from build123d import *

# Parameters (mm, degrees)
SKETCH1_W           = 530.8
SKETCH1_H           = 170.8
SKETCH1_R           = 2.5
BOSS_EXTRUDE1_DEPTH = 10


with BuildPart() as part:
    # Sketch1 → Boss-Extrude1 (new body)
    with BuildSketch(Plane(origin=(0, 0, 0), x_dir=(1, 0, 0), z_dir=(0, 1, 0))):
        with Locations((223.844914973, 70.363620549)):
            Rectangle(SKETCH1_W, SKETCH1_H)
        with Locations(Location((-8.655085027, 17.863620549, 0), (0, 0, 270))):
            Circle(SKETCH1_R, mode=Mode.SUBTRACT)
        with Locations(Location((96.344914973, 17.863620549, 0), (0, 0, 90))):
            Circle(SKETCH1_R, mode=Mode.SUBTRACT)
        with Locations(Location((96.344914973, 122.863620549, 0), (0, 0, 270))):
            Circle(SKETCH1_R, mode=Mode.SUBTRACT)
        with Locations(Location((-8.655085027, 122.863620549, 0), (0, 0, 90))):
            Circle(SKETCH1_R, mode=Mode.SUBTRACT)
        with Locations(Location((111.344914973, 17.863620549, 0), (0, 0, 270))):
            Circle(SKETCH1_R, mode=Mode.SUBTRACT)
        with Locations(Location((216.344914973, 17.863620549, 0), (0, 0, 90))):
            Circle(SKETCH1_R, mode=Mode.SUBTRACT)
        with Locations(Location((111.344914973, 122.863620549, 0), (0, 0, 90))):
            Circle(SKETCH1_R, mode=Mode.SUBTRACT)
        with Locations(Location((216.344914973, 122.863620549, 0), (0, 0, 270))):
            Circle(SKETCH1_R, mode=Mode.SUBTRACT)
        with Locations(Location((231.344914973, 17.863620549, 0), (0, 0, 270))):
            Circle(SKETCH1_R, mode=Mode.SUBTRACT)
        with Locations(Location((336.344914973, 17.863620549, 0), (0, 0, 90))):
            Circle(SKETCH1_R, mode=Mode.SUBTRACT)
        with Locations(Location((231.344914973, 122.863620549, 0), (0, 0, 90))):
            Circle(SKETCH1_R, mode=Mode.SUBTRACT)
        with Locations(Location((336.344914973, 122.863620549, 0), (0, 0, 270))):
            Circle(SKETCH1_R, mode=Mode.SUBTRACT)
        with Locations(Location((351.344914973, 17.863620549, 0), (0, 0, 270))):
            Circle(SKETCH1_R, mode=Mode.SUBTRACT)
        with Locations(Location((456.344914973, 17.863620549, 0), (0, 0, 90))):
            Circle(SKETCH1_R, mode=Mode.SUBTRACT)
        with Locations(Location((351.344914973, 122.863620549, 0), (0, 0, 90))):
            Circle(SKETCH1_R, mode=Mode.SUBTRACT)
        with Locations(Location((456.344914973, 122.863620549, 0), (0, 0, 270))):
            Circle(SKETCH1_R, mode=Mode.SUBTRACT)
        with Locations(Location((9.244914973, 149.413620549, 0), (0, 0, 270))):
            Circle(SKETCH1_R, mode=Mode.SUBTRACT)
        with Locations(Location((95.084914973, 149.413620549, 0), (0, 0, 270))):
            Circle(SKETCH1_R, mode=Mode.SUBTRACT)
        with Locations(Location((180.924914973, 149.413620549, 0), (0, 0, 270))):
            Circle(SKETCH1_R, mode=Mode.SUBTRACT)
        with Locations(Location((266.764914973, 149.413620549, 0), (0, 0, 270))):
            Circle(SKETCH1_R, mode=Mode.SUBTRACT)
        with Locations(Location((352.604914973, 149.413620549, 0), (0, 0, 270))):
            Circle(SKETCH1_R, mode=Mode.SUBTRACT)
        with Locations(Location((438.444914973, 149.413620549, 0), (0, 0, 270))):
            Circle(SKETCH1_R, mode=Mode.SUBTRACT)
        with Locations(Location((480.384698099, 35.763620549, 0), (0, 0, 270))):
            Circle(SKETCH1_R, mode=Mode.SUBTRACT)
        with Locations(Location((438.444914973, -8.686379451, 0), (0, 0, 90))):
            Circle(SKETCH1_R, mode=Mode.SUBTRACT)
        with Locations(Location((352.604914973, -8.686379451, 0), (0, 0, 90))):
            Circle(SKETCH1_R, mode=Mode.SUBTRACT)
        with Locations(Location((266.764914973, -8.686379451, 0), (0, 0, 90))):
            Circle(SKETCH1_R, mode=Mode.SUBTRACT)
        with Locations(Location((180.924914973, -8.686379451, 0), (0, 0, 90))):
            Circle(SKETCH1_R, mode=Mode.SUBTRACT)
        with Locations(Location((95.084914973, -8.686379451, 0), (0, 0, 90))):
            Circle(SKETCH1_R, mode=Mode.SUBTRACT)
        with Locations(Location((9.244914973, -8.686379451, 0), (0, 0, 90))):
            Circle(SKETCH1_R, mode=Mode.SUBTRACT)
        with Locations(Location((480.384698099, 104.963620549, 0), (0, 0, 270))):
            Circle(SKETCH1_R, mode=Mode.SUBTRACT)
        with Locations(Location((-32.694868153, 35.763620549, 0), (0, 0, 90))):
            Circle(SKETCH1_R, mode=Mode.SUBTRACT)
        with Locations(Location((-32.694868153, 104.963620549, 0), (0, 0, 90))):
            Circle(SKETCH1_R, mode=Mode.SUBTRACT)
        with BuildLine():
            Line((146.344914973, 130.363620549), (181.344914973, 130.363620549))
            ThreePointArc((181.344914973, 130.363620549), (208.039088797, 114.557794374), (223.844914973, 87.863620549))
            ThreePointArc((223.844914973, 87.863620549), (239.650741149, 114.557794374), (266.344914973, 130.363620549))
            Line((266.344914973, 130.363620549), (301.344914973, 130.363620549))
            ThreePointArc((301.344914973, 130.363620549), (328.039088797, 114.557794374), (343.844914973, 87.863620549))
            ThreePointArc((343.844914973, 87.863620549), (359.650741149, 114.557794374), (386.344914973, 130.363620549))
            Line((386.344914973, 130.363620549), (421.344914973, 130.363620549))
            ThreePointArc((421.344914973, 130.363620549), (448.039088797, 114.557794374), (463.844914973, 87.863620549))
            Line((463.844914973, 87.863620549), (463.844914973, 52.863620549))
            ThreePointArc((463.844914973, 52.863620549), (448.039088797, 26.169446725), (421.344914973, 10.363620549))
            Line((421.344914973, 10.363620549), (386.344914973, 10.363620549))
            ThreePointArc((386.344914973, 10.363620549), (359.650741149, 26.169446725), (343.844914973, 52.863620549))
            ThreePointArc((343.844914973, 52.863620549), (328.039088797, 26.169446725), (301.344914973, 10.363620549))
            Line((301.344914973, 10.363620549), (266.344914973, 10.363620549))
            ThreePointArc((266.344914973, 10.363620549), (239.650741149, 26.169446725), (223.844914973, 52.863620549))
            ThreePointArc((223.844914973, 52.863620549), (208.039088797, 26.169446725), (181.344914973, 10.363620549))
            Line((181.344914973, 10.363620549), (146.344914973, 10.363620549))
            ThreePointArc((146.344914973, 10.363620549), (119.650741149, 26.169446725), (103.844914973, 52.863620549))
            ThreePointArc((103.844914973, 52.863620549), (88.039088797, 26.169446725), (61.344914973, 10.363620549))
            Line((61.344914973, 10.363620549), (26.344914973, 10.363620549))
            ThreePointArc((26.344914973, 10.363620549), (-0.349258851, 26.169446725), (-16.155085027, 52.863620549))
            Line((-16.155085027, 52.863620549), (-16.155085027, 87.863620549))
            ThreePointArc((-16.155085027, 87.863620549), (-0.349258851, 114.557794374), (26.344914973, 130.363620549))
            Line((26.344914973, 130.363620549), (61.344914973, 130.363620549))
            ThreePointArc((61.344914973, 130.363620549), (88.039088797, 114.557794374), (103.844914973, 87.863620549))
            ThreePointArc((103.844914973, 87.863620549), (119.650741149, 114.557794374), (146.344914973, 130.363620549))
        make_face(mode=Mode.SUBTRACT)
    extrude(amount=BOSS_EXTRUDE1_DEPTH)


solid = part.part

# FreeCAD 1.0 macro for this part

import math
import FreeCAD as App
import Part
import Sketcher
from FreeCAD import Vector

doc = App.newDocument("Part")
body = doc.addObject("PartDesign::Body", "Body")

# Sketch on XZ plane
sketch1 = body.newObject("Sketcher::SketchObject", "Sketch")
sketch1.AttachmentSupport = (doc.getObject("XZ_Plane"), [""])
sketch1.MapMode = "FlatFace"
sketch1.addGeometry(Part.LineSegment(Vector(-41.6, -155.8, 0), Vector(-41.6, 15, 0)), False)
sketch1.addGeometry(Part.LineSegment(Vector(-41.6, 15, 0), Vector(489.2, 15, 0)), False)
sketch1.addGeometry(Part.LineSegment(Vector(489.2, 15, 0), Vector(489.2, -155.8, 0)), False)
sketch1.addGeometry(Part.LineSegment(Vector(489.2, -155.8, 0), Vector(-41.6, -155.8, 0)), False)
sketch1.addGeometry(Part.Circle(Vector(9.2, 8.7, 0), Vector(0, 0, 1), 2.5), False)
sketch1.addGeometry(Part.Circle(Vector(-8.7, -17.9, 0), Vector(0, 0, 1), 2.5), False)
sketch1.addGeometry(Part.Circle(Vector(95.1, 8.7, 0), Vector(0, 0, 1), 2.5), False)
sketch1.addGeometry(Part.Circle(Vector(180.9, 8.7, 0), Vector(0, 0, 1), 2.5), False)
sketch1.addGeometry(Part.Circle(Vector(96.3, -17.9, 0), Vector(0, 0, 1), 2.5), False)
sketch1.addGeometry(Part.Circle(Vector(111.3, -17.9, 0), Vector(0, 0, 1), 2.5), False)
sketch1.addGeometry(Part.Circle(Vector(216.3, -17.9, 0), Vector(0, 0, 1), 2.5), False)
sketch1.addGeometry(Part.Circle(Vector(-32.7, -35.8, 0), Vector(0, 0, 1), 2.5), False)
sketch1.addGeometry(Part.Circle(Vector(266.8, 8.7, 0), Vector(0, 0, 1), 2.5), False)
sketch1.addGeometry(Part.Circle(Vector(352.6, 8.7, 0), Vector(0, 0, 1), 2.5), False)
sketch1.addGeometry(Part.Circle(Vector(231.3, -17.9, 0), Vector(0, 0, 1), 2.5), False)
sketch1.addGeometry(Part.Circle(Vector(336.3, -17.9, 0), Vector(0, 0, 1), 2.5), False)
sketch1.addGeometry(Part.Circle(Vector(351.3, -17.9, 0), Vector(0, 0, 1), 2.5), False)
sketch1.addGeometry(Part.Circle(Vector(438.4, 8.7, 0), Vector(0, 0, 1), 2.5), False)
sketch1.addGeometry(Part.Circle(Vector(456.3, -17.9, 0), Vector(0, 0, 1), 2.5), False)
sketch1.addGeometry(Part.Circle(Vector(480.4, -35.8, 0), Vector(0, 0, 1), 2.5), False)
sketch1.addGeometry(Part.Circle(Vector(-32.7, -105, 0), Vector(0, 0, 1), 2.5), False)
sketch1.addGeometry(Part.Circle(Vector(-8.7, -122.9, 0), Vector(0, 0, 1), 2.5), False)
sketch1.addGeometry(Part.Circle(Vector(9.2, -149.4, 0), Vector(0, 0, 1), 2.5), False)
sketch1.addGeometry(Part.Circle(Vector(96.3, -122.9, 0), Vector(0, 0, 1), 2.5), False)
sketch1.addGeometry(Part.Circle(Vector(111.3, -122.9, 0), Vector(0, 0, 1), 2.5), False)
sketch1.addGeometry(Part.Circle(Vector(216.3, -122.9, 0), Vector(0, 0, 1), 2.5), False)
sketch1.addGeometry(Part.Circle(Vector(95.1, -149.4, 0), Vector(0, 0, 1), 2.5), False)
sketch1.addGeometry(Part.Circle(Vector(180.9, -149.4, 0), Vector(0, 0, 1), 2.5), False)
sketch1.addGeometry(Part.ArcOfCircle(Part.Circle(Vector(163.8, -70.4, 0), Vector(0, 0, 1), 62.5), math.radians(-164), math.radians(-106)), False)
sketch1.addGeometry(Part.LineSegment(Vector(146.3, -130.4, 0), Vector(181.3, -130.4, 0)), False)
sketch1.addGeometry(Part.ArcOfCircle(Part.Circle(Vector(163.8, -70.4, 0), Vector(0, 0, 1), 62.5), math.radians(-74), math.radians(-16)), False)
sketch1.addGeometry(Part.ArcOfCircle(Part.Circle(Vector(283.8, -70.4, 0), Vector(0, 0, 1), 62.5), math.radians(-164), math.radians(-106)), False)
sketch1.addGeometry(Part.LineSegment(Vector(266.3, -130.4, 0), Vector(301.3, -130.4, 0)), False)
sketch1.addGeometry(Part.ArcOfCircle(Part.Circle(Vector(283.8, -70.4, 0), Vector(0, 0, 1), 62.5), math.radians(-74), math.radians(-16)), False)
sketch1.addGeometry(Part.ArcOfCircle(Part.Circle(Vector(403.8, -70.4, 0), Vector(0, 0, 1), 62.5), math.radians(-164), math.radians(-106)), False)
sketch1.addGeometry(Part.LineSegment(Vector(386.3, -130.4, 0), Vector(421.3, -130.4, 0)), False)
sketch1.addGeometry(Part.ArcOfCircle(Part.Circle(Vector(403.8, -70.4, 0), Vector(0, 0, 1), 62.5), math.radians(-74), math.radians(-16)), False)
sketch1.addGeometry(Part.LineSegment(Vector(463.8, -87.9, 0), Vector(463.8, -52.9, 0)), False)
sketch1.addGeometry(Part.ArcOfCircle(Part.Circle(Vector(403.8, -70.4, 0), Vector(0, 0, 1), 62.5), math.radians(16), math.radians(74)), False)
sketch1.addGeometry(Part.LineSegment(Vector(421.3, -10.4, 0), Vector(386.3, -10.4, 0)), False)
sketch1.addGeometry(Part.ArcOfCircle(Part.Circle(Vector(403.8, -70.4, 0), Vector(0, 0, 1), 62.5), math.radians(106), math.radians(164)), False)
sketch1.addGeometry(Part.ArcOfCircle(Part.Circle(Vector(283.8, -70.4, 0), Vector(0, 0, 1), 62.5), math.radians(16), math.radians(74)), False)
sketch1.addGeometry(Part.LineSegment(Vector(301.3, -10.4, 0), Vector(266.3, -10.4, 0)), False)
sketch1.addGeometry(Part.ArcOfCircle(Part.Circle(Vector(283.8, -70.4, 0), Vector(0, 0, 1), 62.5), math.radians(106), math.radians(164)), False)
sketch1.addGeometry(Part.ArcOfCircle(Part.Circle(Vector(163.8, -70.4, 0), Vector(0, 0, 1), 62.5), math.radians(16), math.radians(74)), False)
sketch1.addGeometry(Part.LineSegment(Vector(181.3, -10.4, 0), Vector(146.3, -10.4, 0)), False)
sketch1.addGeometry(Part.ArcOfCircle(Part.Circle(Vector(163.8, -70.4, 0), Vector(0, 0, 1), 62.5), math.radians(106), math.radians(164)), False)
sketch1.addGeometry(Part.ArcOfCircle(Part.Circle(Vector(43.8, -70.4, 0), Vector(0, 0, 1), 62.5), math.radians(16), math.radians(74)), False)
sketch1.addGeometry(Part.LineSegment(Vector(61.3, -10.4, 0), Vector(26.3, -10.4, 0)), False)
sketch1.addGeometry(Part.ArcOfCircle(Part.Circle(Vector(43.8, -70.4, 0), Vector(0, 0, 1), 62.5), math.radians(106), math.radians(164)), False)
sketch1.addGeometry(Part.LineSegment(Vector(-16.2, -52.9, 0), Vector(-16.2, -87.9, 0)), False)
sketch1.addGeometry(Part.ArcOfCircle(Part.Circle(Vector(43.8, -70.4, 0), Vector(0, 0, 1), 62.5), math.radians(-164), math.radians(-106)), False)
sketch1.addGeometry(Part.LineSegment(Vector(26.3, -130.4, 0), Vector(61.3, -130.4, 0)), False)
sketch1.addGeometry(Part.ArcOfCircle(Part.Circle(Vector(43.8, -70.4, 0), Vector(0, 0, 1), 62.5), math.radians(-74), math.radians(-16)), False)
sketch1.addGeometry(Part.Circle(Vector(480.4, -105, 0), Vector(0, 0, 1), 2.5), False)
sketch1.addGeometry(Part.Circle(Vector(231.3, -122.9, 0), Vector(0, 0, 1), 2.5), False)
sketch1.addGeometry(Part.Circle(Vector(336.3, -122.9, 0), Vector(0, 0, 1), 2.5), False)
sketch1.addGeometry(Part.Circle(Vector(351.3, -122.9, 0), Vector(0, 0, 1), 2.5), False)
sketch1.addGeometry(Part.Circle(Vector(266.8, -149.4, 0), Vector(0, 0, 1), 2.5), False)
sketch1.addGeometry(Part.Circle(Vector(352.6, -149.4, 0), Vector(0, 0, 1), 2.5), False)
sketch1.addGeometry(Part.Circle(Vector(456.3, -122.9, 0), Vector(0, 0, 1), 2.5), False)
sketch1.addGeometry(Part.Circle(Vector(438.4, -149.4, 0), Vector(0, 0, 1), 2.5), False)
sketch1.addConstraint(Sketcher.Constraint("Coincident", 0, 2, 1, 1))
sketch1.addConstraint(Sketcher.Constraint("Coincident", 1, 2, 2, 1))
sketch1.addConstraint(Sketcher.Constraint("Coincident", 2, 2, 3, 1))
sketch1.addConstraint(Sketcher.Constraint("Coincident", 3, 2, 0, 1))
sketch1.addConstraint(Sketcher.Constraint("Coincident", 28, 2, 29, 1))
sketch1.addConstraint(Sketcher.Constraint("Coincident", 29, 2, 30, 1))
sketch1.addConstraint(Sketcher.Constraint("Coincident", 30, 2, 31, 1))
sketch1.addConstraint(Sketcher.Constraint("Coincident", 31, 2, 32, 1))
sketch1.addConstraint(Sketcher.Constraint("Coincident", 32, 2, 33, 1))
sketch1.addConstraint(Sketcher.Constraint("Coincident", 33, 2, 34, 1))
sketch1.addConstraint(Sketcher.Constraint("Coincident", 34, 2, 35, 1))
sketch1.addConstraint(Sketcher.Constraint("Coincident", 35, 2, 36, 1))
sketch1.addConstraint(Sketcher.Constraint("Coincident", 36, 2, 37, 1))
sketch1.addConstraint(Sketcher.Constraint("Coincident", 37, 2, 38, 1))
sketch1.addConstraint(Sketcher.Constraint("Coincident", 38, 2, 39, 1))
sketch1.addConstraint(Sketcher.Constraint("Coincident", 39, 2, 40, 1))
sketch1.addConstraint(Sketcher.Constraint("Coincident", 40, 2, 41, 1))
sketch1.addConstraint(Sketcher.Constraint("Coincident", 41, 2, 42, 1))
sketch1.addConstraint(Sketcher.Constraint("Coincident", 42, 2, 43, 1))
sketch1.addConstraint(Sketcher.Constraint("Coincident", 43, 2, 44, 1))
sketch1.addConstraint(Sketcher.Constraint("Coincident", 44, 2, 45, 1))
sketch1.addConstraint(Sketcher.Constraint("Coincident", 45, 2, 46, 1))
sketch1.addConstraint(Sketcher.Constraint("Coincident", 46, 2, 47, 1))
sketch1.addConstraint(Sketcher.Constraint("Coincident", 47, 2, 48, 1))
sketch1.addConstraint(Sketcher.Constraint("Coincident", 48, 2, 49, 1))
sketch1.addConstraint(Sketcher.Constraint("Coincident", 49, 2, 50, 1))
sketch1.addConstraint(Sketcher.Constraint("Coincident", 50, 2, 51, 1))
sketch1.addConstraint(Sketcher.Constraint("Coincident", 51, 2, 52, 1))
sketch1.addConstraint(Sketcher.Constraint("Coincident", 52, 2, 53, 1))
sketch1.addConstraint(Sketcher.Constraint("Coincident", 53, 2, 28, 1))
sketch1.addConstraint(Sketcher.Constraint("Vertical", 0))
sketch1.addConstraint(Sketcher.Constraint("Horizontal", 1))
sketch1.addConstraint(Sketcher.Constraint("Vertical", 2))
sketch1.addConstraint(Sketcher.Constraint("Horizontal", 3))
sketch1.addConstraint(Sketcher.Constraint("Horizontal", 29))
sketch1.addConstraint(Sketcher.Constraint("Horizontal", 32))
sketch1.addConstraint(Sketcher.Constraint("Horizontal", 35))
sketch1.addConstraint(Sketcher.Constraint("Vertical", 37))
sketch1.addConstraint(Sketcher.Constraint("Horizontal", 39))
sketch1.addConstraint(Sketcher.Constraint("Horizontal", 42))
sketch1.addConstraint(Sketcher.Constraint("Horizontal", 45))
sketch1.addConstraint(Sketcher.Constraint("Horizontal", 48))
sketch1.addConstraint(Sketcher.Constraint("Vertical", 50))
sketch1.addConstraint(Sketcher.Constraint("Horizontal", 52))
sketch1.addConstraint(Sketcher.Constraint("Coincident", 30, 3, 28, 3))
sketch1.addConstraint(Sketcher.Constraint("Coincident", 33, 3, 31, 3))
sketch1.addConstraint(Sketcher.Constraint("Coincident", 36, 3, 34, 3))
sketch1.addConstraint(Sketcher.Constraint("Coincident", 38, 3, 34, 3))
sketch1.addConstraint(Sketcher.Constraint("Coincident", 40, 3, 34, 3))
sketch1.addConstraint(Sketcher.Constraint("Coincident", 41, 3, 31, 3))
sketch1.addConstraint(Sketcher.Constraint("Coincident", 43, 3, 31, 3))
sketch1.addConstraint(Sketcher.Constraint("Coincident", 44, 3, 28, 3))
sketch1.addConstraint(Sketcher.Constraint("Coincident", 46, 3, 28, 3))
sketch1.addConstraint(Sketcher.Constraint("Coincident", 49, 3, 47, 3))
sketch1.addConstraint(Sketcher.Constraint("Coincident", 51, 3, 47, 3))
sketch1.addConstraint(Sketcher.Constraint("Coincident", 53, 3, 47, 3))
sketch1.addConstraint(Sketcher.Constraint("Equal", 4, 5))
sketch1.addConstraint(Sketcher.Constraint("Equal", 5, 6))
sketch1.addConstraint(Sketcher.Constraint("Equal", 6, 7))
sketch1.addConstraint(Sketcher.Constraint("Equal", 7, 8))
sketch1.addConstraint(Sketcher.Constraint("Equal", 8, 9))
sketch1.addConstraint(Sketcher.Constraint("Equal", 9, 10))
sketch1.addConstraint(Sketcher.Constraint("Equal", 10, 11))
sketch1.addConstraint(Sketcher.Constraint("Equal", 11, 12))
sketch1.addConstraint(Sketcher.Constraint("Equal", 12, 13))
sketch1.addConstraint(Sketcher.Constraint("Equal", 13, 14))
sketch1.addConstraint(Sketcher.Constraint("Equal", 14, 15))
sketch1.addConstraint(Sketcher.Constraint("Equal", 15, 16))
sketch1.addConstraint(Sketcher.Constraint("Equal", 16, 17))
sketch1.addConstraint(Sketcher.Constraint("Equal", 17, 18))
sketch1.addConstraint(Sketcher.Constraint("Equal", 18, 19))
sketch1.addConstraint(Sketcher.Constraint("Equal", 19, 20))
sketch1.addConstraint(Sketcher.Constraint("Equal", 20, 21))
sketch1.addConstraint(Sketcher.Constraint("Equal", 21, 22))
sketch1.addConstraint(Sketcher.Constraint("Equal", 22, 23))
sketch1.addConstraint(Sketcher.Constraint("Equal", 23, 24))
sketch1.addConstraint(Sketcher.Constraint("Equal", 24, 25))
sketch1.addConstraint(Sketcher.Constraint("Equal", 25, 26))
sketch1.addConstraint(Sketcher.Constraint("Equal", 26, 27))
sketch1.addConstraint(Sketcher.Constraint("Equal", 28, 30))
sketch1.addConstraint(Sketcher.Constraint("Equal", 30, 31))
sketch1.addConstraint(Sketcher.Constraint("Equal", 31, 33))
sketch1.addConstraint(Sketcher.Constraint("Equal", 33, 34))
sketch1.addConstraint(Sketcher.Constraint("Equal", 34, 36))
sketch1.addConstraint(Sketcher.Constraint("Equal", 36, 38))
sketch1.addConstraint(Sketcher.Constraint("Equal", 38, 40))
sketch1.addConstraint(Sketcher.Constraint("Equal", 40, 41))
sketch1.addConstraint(Sketcher.Constraint("Equal", 41, 43))
sketch1.addConstraint(Sketcher.Constraint("Equal", 43, 44))
sketch1.addConstraint(Sketcher.Constraint("Equal", 44, 46))
sketch1.addConstraint(Sketcher.Constraint("Equal", 46, 47))
sketch1.addConstraint(Sketcher.Constraint("Equal", 47, 49))
sketch1.addConstraint(Sketcher.Constraint("Equal", 49, 51))
sketch1.addConstraint(Sketcher.Constraint("Equal", 51, 53))
sketch1.addConstraint(Sketcher.Constraint("Equal", 27, 54))
sketch1.addConstraint(Sketcher.Constraint("Equal", 54, 55))
sketch1.addConstraint(Sketcher.Constraint("Equal", 55, 56))
sketch1.addConstraint(Sketcher.Constraint("Equal", 56, 57))
sketch1.addConstraint(Sketcher.Constraint("Equal", 57, 58))
sketch1.addConstraint(Sketcher.Constraint("Equal", 58, 59))
sketch1.addConstraint(Sketcher.Constraint("Equal", 59, 60))
sketch1.addConstraint(Sketcher.Constraint("Equal", 60, 61))
sketch1.addConstraint(Sketcher.Constraint("Horizontal", 4, 3, 6, 3))
sketch1.addConstraint(Sketcher.Constraint("Horizontal", 6, 3, 7, 3))
sketch1.addConstraint(Sketcher.Constraint("Horizontal", 5, 3, 8, 3))
sketch1.addConstraint(Sketcher.Constraint("Horizontal", 8, 3, 9, 3))
sketch1.addConstraint(Sketcher.Constraint("Horizontal", 9, 3, 10, 3))
sketch1.addConstraint(Sketcher.Constraint("Horizontal", 7, 3, 12, 3))
sketch1.addConstraint(Sketcher.Constraint("Horizontal", 12, 3, 13, 3))
sketch1.addConstraint(Sketcher.Constraint("Horizontal", 10, 3, 14, 3))
sketch1.addConstraint(Sketcher.Constraint("Horizontal", 14, 3, 15, 3))
sketch1.addConstraint(Sketcher.Constraint("Horizontal", 15, 3, 16, 3))
sketch1.addConstraint(Sketcher.Constraint("Horizontal", 13, 3, 17, 3))
sketch1.addConstraint(Sketcher.Constraint("Horizontal", 16, 3, 18, 3))
sketch1.addConstraint(Sketcher.Constraint("Horizontal", 11, 3, 19, 3))
sketch1.addConstraint(Sketcher.Constraint("Horizontal", 21, 3, 23, 3))
sketch1.addConstraint(Sketcher.Constraint("Horizontal", 23, 3, 24, 3))
sketch1.addConstraint(Sketcher.Constraint("Horizontal", 24, 3, 25, 3))
sketch1.addConstraint(Sketcher.Constraint("Horizontal", 22, 3, 26, 3))
sketch1.addConstraint(Sketcher.Constraint("Horizontal", 26, 3, 27, 3))
sketch1.addConstraint(Sketcher.Constraint("Horizontal", 30, 3, 31, 3))
sketch1.addConstraint(Sketcher.Constraint("Horizontal", 33, 3, 34, 3))
sketch1.addConstraint(Sketcher.Constraint("Horizontal", 46, 3, 47, 3))
sketch1.addConstraint(Sketcher.Constraint("Horizontal", 20, 3, 54, 3))
sketch1.addConstraint(Sketcher.Constraint("Horizontal", 25, 3, 55, 3))
sketch1.addConstraint(Sketcher.Constraint("Horizontal", 55, 3, 56, 3))
sketch1.addConstraint(Sketcher.Constraint("Horizontal", 56, 3, 57, 3))
sketch1.addConstraint(Sketcher.Constraint("Horizontal", 27, 3, 58, 3))
sketch1.addConstraint(Sketcher.Constraint("Horizontal", 58, 3, 59, 3))
sketch1.addConstraint(Sketcher.Constraint("Horizontal", 57, 3, 60, 3))
sketch1.addConstraint(Sketcher.Constraint("Horizontal", 59, 3, 61, 3))
sketch1.addConstraint(Sketcher.Constraint("Horizontal", 29, 2, 31, 2))
sketch1.addConstraint(Sketcher.Constraint("Horizontal", 30, 2, 33, 2))
sketch1.addConstraint(Sketcher.Constraint("Horizontal", 32, 2, 34, 2))
sketch1.addConstraint(Sketcher.Constraint("Horizontal", 33, 2, 36, 2))
sketch1.addConstraint(Sketcher.Constraint("Horizontal", 39, 2, 41, 2))
sketch1.addConstraint(Sketcher.Constraint("Horizontal", 42, 2, 44, 2))
sketch1.addConstraint(Sketcher.Constraint("Horizontal", 43, 2, 46, 2))
sketch1.addConstraint(Sketcher.Constraint("Horizontal", 45, 2, 47, 2))
sketch1.addConstraint(Sketcher.Constraint("Horizontal", 46, 2, 49, 2))
sketch1.addConstraint(Sketcher.Constraint("Horizontal", 35, 2, 51, 2))
sketch1.addConstraint(Sketcher.Constraint("Vertical", 11, 3, 20, 3))
sketch1.addConstraint(Sketcher.Constraint("Vertical", 5, 3, 21, 3))
sketch1.addConstraint(Sketcher.Constraint("Vertical", 4, 3, 22, 3))
sketch1.addConstraint(Sketcher.Constraint("Vertical", 8, 3, 23, 3))
sketch1.addConstraint(Sketcher.Constraint("Vertical", 9, 3, 24, 3))
sketch1.addConstraint(Sketcher.Constraint("Vertical", 10, 3, 25, 3))
sketch1.addConstraint(Sketcher.Constraint("Vertical", 6, 3, 26, 3))
sketch1.addConstraint(Sketcher.Constraint("Vertical", 7, 3, 27, 3))
sketch1.addConstraint(Sketcher.Constraint("Vertical", 19, 3, 54, 3))
sketch1.addConstraint(Sketcher.Constraint("Vertical", 14, 3, 55, 3))
sketch1.addConstraint(Sketcher.Constraint("Vertical", 15, 3, 56, 3))
sketch1.addConstraint(Sketcher.Constraint("Vertical", 16, 3, 57, 3))
sketch1.addConstraint(Sketcher.Constraint("Vertical", 12, 3, 58, 3))
sketch1.addConstraint(Sketcher.Constraint("Vertical", 13, 3, 59, 3))
sketch1.addConstraint(Sketcher.Constraint("Vertical", 18, 3, 60, 3))
sketch1.addConstraint(Sketcher.Constraint("Vertical", 17, 3, 61, 3))
sketch1.addConstraint(Sketcher.Constraint("Vertical", 35, 2, 38, 2))
sketch1.addConstraint(Sketcher.Constraint("Equal", 52, 37))
sketch1.addConstraint(Sketcher.Constraint("Diameter", 4, 5.0))
sketch1.addConstraint(Sketcher.Constraint("Radius", 28, 62.5))
sketch1.addConstraint(Sketcher.Constraint("DistanceX", 29, 1, 29, 2, 35.0))
sketch1.addConstraint(Sketcher.Constraint("DistanceX", 1, 1, 1, 2, 530.8))
sketch1.addConstraint(Sketcher.Constraint("DistanceY", 0, 1, 0, 2, 170.8))
sketch1.addConstraint(Sketcher.Constraint("DistanceX", -1, 1, 19, 3, 480.384698))
sketch1.addConstraint(Sketcher.Constraint("DistanceY", -1, 1, 4, 3, 8.686379))
sketch1.addConstraint(Sketcher.Constraint("DistanceY", 5, 3, -1, 1, 17.863621))
sketch1.addConstraint(Sketcher.Constraint("DistanceX", 11, 3, -1, 1, 32.694868))
sketch1.addConstraint(Sketcher.Constraint("DistanceY", 11, 3, -1, 1, 35.763621))
sketch1.addConstraint(Sketcher.Constraint("DistanceY", 20, 3, -1, 1, 104.963621))
sketch1.addConstraint(Sketcher.Constraint("DistanceY", 21, 3, -1, 1, 122.863621))
sketch1.addConstraint(Sketcher.Constraint("DistanceY", 22, 3, -1, 1, 149.413621))
sketch1.addConstraint(Sketcher.Constraint("DistanceY", 28, 3, -1, 1, 70.363621))
sketch1.addConstraint(Sketcher.Constraint("DistanceY", -1, 1, 0, 2, 15.036379))
sketch1.addConstraint(Sketcher.Constraint("DistanceX", -1, 1, 4, 3, 9.244915))
sketch1.addConstraint(Sketcher.Constraint("DistanceX", 5, 3, -1, 1, 8.655085))
sketch1.addConstraint(Sketcher.Constraint("DistanceX", -1, 1, 6, 3, 95.084915))
sketch1.addConstraint(Sketcher.Constraint("DistanceX", -1, 1, 7, 3, 180.924915))
sketch1.addConstraint(Sketcher.Constraint("DistanceX", -1, 1, 8, 3, 96.344915))
sketch1.addConstraint(Sketcher.Constraint("DistanceX", -1, 1, 9, 3, 111.344915))
sketch1.addConstraint(Sketcher.Constraint("DistanceX", -1, 1, 10, 3, 216.344915))
sketch1.addConstraint(Sketcher.Constraint("DistanceX", -1, 1, 12, 3, 266.764915))
sketch1.addConstraint(Sketcher.Constraint("DistanceX", -1, 1, 13, 3, 352.604915))
sketch1.addConstraint(Sketcher.Constraint("DistanceX", -1, 1, 14, 3, 231.344915))
sketch1.addConstraint(Sketcher.Constraint("DistanceX", -1, 1, 15, 3, 336.344915))
sketch1.addConstraint(Sketcher.Constraint("DistanceX", -1, 1, 16, 3, 351.344915))
sketch1.addConstraint(Sketcher.Constraint("DistanceX", -1, 1, 17, 3, 438.444915))
sketch1.addConstraint(Sketcher.Constraint("DistanceX", -1, 1, 18, 3, 456.344915))
sketch1.addConstraint(Sketcher.Constraint("DistanceX", -1, 1, 28, 3, 163.844915))
sketch1.addConstraint(Sketcher.Constraint("DistanceX", 0, 2, -1, 1, 41.555085))
pad1 = body.newObject("PartDesign::Pad", "Pad")
pad1.Profile = sketch1
pad1.Length = 10
pad1.Reversed = True

doc.recompute()
